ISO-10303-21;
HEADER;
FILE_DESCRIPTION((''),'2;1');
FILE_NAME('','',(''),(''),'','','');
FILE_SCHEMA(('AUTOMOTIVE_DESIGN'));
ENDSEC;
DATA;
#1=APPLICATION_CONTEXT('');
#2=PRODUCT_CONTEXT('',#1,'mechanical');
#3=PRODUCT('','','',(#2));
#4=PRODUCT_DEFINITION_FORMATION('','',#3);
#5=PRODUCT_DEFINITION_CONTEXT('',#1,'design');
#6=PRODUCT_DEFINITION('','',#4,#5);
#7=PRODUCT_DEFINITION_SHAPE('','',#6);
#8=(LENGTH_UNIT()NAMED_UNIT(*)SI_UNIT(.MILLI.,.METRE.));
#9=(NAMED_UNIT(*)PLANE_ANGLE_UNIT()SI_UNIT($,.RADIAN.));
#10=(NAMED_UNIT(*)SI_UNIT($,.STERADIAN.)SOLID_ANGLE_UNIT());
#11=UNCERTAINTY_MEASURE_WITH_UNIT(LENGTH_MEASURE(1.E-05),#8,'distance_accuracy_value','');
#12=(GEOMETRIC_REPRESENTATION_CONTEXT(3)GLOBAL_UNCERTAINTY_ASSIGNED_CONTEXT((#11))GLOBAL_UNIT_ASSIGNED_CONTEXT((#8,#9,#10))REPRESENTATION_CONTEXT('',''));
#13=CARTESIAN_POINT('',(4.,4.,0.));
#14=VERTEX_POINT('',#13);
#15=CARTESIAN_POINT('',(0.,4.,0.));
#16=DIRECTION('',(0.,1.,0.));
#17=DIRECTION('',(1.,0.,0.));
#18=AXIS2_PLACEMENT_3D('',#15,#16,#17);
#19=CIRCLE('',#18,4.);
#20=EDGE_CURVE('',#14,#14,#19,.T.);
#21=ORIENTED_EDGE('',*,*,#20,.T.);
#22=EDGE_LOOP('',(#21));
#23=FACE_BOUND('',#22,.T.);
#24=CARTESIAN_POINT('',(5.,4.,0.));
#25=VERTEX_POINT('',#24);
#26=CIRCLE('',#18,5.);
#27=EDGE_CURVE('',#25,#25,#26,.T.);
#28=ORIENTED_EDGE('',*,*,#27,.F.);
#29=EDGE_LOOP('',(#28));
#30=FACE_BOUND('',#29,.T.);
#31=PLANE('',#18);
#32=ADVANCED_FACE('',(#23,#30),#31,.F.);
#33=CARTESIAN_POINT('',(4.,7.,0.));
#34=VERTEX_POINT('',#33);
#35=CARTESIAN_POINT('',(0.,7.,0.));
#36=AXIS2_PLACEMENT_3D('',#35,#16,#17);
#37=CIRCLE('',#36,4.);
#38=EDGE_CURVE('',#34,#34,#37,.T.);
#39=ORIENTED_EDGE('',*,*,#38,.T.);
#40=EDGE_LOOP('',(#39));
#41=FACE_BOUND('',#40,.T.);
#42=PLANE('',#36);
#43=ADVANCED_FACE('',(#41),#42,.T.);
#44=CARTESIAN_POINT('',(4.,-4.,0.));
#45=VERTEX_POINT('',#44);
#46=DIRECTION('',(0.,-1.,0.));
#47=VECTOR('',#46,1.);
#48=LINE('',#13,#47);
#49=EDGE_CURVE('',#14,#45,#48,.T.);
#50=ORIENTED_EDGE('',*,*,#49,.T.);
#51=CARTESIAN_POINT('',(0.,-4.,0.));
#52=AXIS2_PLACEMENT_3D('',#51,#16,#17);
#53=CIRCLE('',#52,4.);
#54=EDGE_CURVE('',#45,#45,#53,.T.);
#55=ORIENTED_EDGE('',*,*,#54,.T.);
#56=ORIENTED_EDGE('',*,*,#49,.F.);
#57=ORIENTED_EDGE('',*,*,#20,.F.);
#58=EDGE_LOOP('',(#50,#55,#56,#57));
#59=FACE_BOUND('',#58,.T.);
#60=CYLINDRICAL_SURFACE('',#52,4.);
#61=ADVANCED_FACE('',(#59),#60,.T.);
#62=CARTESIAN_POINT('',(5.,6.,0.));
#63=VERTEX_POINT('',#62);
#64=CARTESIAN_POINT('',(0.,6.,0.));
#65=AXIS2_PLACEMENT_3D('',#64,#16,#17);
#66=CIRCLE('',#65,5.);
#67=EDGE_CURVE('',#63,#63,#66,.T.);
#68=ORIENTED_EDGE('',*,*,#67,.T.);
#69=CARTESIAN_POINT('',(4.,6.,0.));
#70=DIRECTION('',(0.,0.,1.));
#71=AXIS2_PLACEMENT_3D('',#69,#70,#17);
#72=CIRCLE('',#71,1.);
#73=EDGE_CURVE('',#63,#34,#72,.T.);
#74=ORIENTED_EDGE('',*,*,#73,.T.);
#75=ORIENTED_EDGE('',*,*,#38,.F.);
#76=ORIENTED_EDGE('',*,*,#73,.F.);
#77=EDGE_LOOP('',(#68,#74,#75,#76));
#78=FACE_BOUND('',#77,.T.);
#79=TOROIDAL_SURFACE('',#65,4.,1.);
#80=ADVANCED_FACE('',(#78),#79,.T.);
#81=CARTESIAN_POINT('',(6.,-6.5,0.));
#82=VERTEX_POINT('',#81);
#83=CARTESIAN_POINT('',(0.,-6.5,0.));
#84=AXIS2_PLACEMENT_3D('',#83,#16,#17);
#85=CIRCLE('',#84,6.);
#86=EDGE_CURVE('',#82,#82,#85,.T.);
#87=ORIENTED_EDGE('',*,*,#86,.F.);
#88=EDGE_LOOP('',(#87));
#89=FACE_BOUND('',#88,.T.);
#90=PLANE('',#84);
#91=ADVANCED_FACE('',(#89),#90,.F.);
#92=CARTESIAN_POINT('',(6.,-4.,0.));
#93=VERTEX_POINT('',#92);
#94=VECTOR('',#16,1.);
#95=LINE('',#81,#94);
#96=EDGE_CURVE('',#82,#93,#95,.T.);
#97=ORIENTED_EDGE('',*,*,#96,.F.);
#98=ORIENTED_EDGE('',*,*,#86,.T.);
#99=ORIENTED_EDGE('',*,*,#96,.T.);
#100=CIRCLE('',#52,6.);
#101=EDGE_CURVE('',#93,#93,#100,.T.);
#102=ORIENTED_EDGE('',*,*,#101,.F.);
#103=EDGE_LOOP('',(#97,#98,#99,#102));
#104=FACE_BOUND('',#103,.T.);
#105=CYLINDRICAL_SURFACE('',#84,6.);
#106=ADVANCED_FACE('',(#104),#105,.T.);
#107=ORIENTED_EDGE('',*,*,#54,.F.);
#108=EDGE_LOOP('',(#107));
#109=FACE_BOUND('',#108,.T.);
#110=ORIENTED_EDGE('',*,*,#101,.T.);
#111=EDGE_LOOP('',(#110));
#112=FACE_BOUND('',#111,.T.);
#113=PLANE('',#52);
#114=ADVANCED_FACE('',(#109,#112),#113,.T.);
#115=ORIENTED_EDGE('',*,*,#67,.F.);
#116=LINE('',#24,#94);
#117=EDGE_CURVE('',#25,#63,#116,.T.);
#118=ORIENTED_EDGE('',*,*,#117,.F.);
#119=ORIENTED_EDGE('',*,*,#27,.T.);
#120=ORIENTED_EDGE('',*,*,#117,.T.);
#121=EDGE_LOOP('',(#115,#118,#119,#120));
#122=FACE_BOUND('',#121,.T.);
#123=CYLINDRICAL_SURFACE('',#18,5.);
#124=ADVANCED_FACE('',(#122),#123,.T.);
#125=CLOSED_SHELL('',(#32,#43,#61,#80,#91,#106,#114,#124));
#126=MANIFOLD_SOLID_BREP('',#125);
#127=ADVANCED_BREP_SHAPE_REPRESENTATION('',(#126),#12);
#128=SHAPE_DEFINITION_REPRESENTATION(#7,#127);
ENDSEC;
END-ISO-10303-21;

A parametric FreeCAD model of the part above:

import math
import FreeCAD as App
import Part
import Sketcher
Q = App.Units.Quantity

doc = App.newDocument("Part")
body = doc.addObject("PartDesign::Body", "Body")

sketch1 = doc.addObject("Sketcher::SketchObject", "Sketch")
body.addObject(sketch1)
sketch1.AttachmentSupport = (doc.XY_Plane, [""])
sketch1.MapMode = "FlatFace"
sketch1.addGeometry([
    Part.LineSegment(App.Vector(0, 7, 0), App.Vector(0, -6.5, 0)),
    Part.LineSegment(App.Vector(0, -6.5, 0), App.Vector(6, -6.5, 0)),
    Part.LineSegment(App.Vector(6, -6.5, 0), App.Vector(6, -4, 0)),
    Part.LineSegment(App.Vector(6, -4, 0), App.Vector(4, -4, 0)),
    Part.LineSegment(App.Vector(4, -4, 0), App.Vector(4, 4, 0)),
    Part.LineSegment(App.Vector(4, 4, 0), App.Vector(5, 4, 0)),
    Part.LineSegment(App.Vector(5, 4, 0), App.Vector(5, 6, 0)),
    Part.ArcOfCircle(Part.Circle(App.Vector(4, 6, 0), App.Vector(0, 0, 1), 1), math.radians(0), math.radians(90)),
    Part.LineSegment(App.Vector(4, 7, 0), App.Vector(0, 7, 0)),
], False)
sketch1.addConstraint([
    Sketcher.Constraint("Coincident", 0, 2, 1, 1),
    Sketcher.Constraint("Coincident", 1, 2, 2, 1),
    Sketcher.Constraint("Coincident", 2, 2, 3, 1),
    Sketcher.Constraint("Coincident", 3, 2, 4, 1),
    Sketcher.Constraint("Coincident", 4, 2, 5, 1),
    Sketcher.Constraint("Coincident", 5, 2, 6, 1),
    Sketcher.Constraint("Tangent", 6, 2, 7, 1),
    Sketcher.Constraint("Tangent", 7, 2, 8, 1),
    Sketcher.Constraint("Coincident", 8, 2, 0, 1),
    Sketcher.Constraint("Vertical", 0),
    Sketcher.Constraint("Horizontal", 1),
    Sketcher.Constraint("Vertical", 2),
    Sketcher.Constraint("Horizontal", 3),
    Sketcher.Constraint("Vertical", 4),
    Sketcher.Constraint("Horizontal", 5),
    Sketcher.Constraint("Vertical", 6),
    Sketcher.Constraint("Horizontal", 8),
    Sketcher.Constraint("PointOnObject", 0, 2, -2),
    Sketcher.Constraint("Vertical", 7, 3, 3, 2),
    Sketcher.Constraint("Equal", 3, 6),
    Sketcher.Constraint("Radius", 7, Q("1 mm")),
    Sketcher.Constraint("DistanceY", 4, 1, 4, 2, Q("8 mm")),
    Sketcher.Constraint("DistanceY", 2, 1, 2, 2, Q("2.5 mm")),
    Sketcher.Constraint("DistanceY", 2, 2, 7, 3, Q("10 mm")),
    Sketcher.Constraint("DistanceX", 1, 1, 1, 2, Q("6 mm")),
    Sketcher.Constraint("DistanceY", -1, 1, 7, 3, Q("6 mm")),
])
revolution = doc.addObject("PartDesign::Revolution", "Revolution")
body.addObject(revolution)
revolution.Profile = sketch1
revolution.ReferenceAxis = (sketch1, ["V_Axis"])
revolution.Angle = 360

doc.recompute()
